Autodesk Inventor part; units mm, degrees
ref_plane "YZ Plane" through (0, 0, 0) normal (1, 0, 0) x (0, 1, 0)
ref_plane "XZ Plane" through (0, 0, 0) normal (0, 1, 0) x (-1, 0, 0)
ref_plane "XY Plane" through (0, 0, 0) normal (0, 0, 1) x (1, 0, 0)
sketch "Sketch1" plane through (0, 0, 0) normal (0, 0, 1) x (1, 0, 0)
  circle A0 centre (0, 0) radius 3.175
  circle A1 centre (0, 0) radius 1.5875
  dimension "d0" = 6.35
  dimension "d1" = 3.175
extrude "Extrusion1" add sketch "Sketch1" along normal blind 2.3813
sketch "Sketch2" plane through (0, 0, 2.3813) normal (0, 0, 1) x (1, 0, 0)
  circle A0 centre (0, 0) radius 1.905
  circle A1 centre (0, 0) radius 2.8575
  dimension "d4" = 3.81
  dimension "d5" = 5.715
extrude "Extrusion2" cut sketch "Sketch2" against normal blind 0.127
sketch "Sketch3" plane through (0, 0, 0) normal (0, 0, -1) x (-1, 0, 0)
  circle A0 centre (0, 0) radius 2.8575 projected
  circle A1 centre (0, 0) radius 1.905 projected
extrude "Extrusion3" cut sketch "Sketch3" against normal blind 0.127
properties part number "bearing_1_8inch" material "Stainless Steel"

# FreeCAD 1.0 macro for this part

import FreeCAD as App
import Part
import Sketcher
from FreeCAD import Vector
Q = App.Units.Quantity

doc = App.newDocument("Part")
params = doc.addObject("Spreadsheet::Sheet", "Params")
for row, (alias, value) in enumerate([
    ("sketch1_diameter", "0.25 in"),
    ("sketch1_diameter2", "0.125 in"),
    ("pad1_length", "0.093752 in"),
    ("sketch2_diameter", "0.15 in"),
    ("sketch2_diameter2", "0.225 in"),
    ("pocket1_length", "0.005 in"),
    ("sketch3_diameter", "0.15 in"),
    ("sketch3_diameter2", "0.225 in"),
    ("pocket2_length", "0.005 in"),
], start=1):
    params.set(f"A{row}", alias)
    params.set(f"B{row}", "=" + value)
    params.setAlias(f"B{row}", alias)

body = doc.addObject("PartDesign::Body", "Body")

# Sketch on XY plane
sketch1 = body.newObject("Sketcher::SketchObject", "Sketch")
sketch1.AttachmentSupport = (doc.getObject("XY_Plane"), [""])
sketch1.MapMode = "FlatFace"
sketch1.addGeometry([
    Part.Circle(Vector(0, 0, 0), Vector(0, 0, 1), 3.2),
    Part.Circle(Vector(0, 0, 0), Vector(0, 0, 1), 1.6),
], False)
sketch1.addConstraint([
    Sketcher.Constraint("Coincident", 0, 3, -1, 1),
    Sketcher.Constraint("Coincident", 1, 3, -1, 1),
    Sketcher.Constraint("Diameter", 0, Q("0.25 in")),
    Sketcher.Constraint("Diameter", 1, Q("0.125 in")),
])
sketch1.setExpression("Constraints[2]", "Params.sketch1_diameter")
sketch1.setExpression("Constraints[3]", "Params.sketch1_diameter2")
pad1 = body.newObject("PartDesign::Pad", "Pad")
pad1.Profile = sketch1
pad1.setExpression("Length", "Params.pad1_length")

# Sketch on XY plane
sketch2 = body.newObject("Sketcher::SketchObject", "Sketch001")
sketch2.AttachmentSupport = (doc.getObject("XY_Plane"), [""])
sketch2.MapMode = "FlatFace"
sketch2.AttachmentOffset = App.Placement(Vector(0, 0, 0.093752 * 25.4), App.Rotation())
sketch2.addGeometry([
    Part.Circle(Vector(0, 0, 0), Vector(0, 0, 1), 2.9),
    Part.Circle(Vector(0, 0, 0), Vector(0, 0, 1), 1.9),
], False)
sketch2.addConstraint([
    Sketcher.Constraint("Coincident", 0, 3, -1, 1),
    Sketcher.Constraint("Coincident", 1, 3, -1, 1),
    Sketcher.Constraint("Diameter", 1, Q("0.15 in")),
    Sketcher.Constraint("Diameter", 0, Q("0.225 in")),
])
sketch2.setExpression("Constraints[2]", "Params.sketch2_diameter")
sketch2.setExpression("Constraints[3]", "Params.sketch2_diameter2")
pocket1 = body.newObject("PartDesign::Pocket", "Pocket")
pocket1.Profile = sketch2
pocket1.setExpression("Length", "Params.pocket1_length")

# Sketch on XY plane
sketch3 = body.newObject("Sketcher::SketchObject", "Sketch002")
sketch3.AttachmentSupport = (doc.getObject("XY_Plane"), [""])
sketch3.MapMode = "FlatFace"
sketch3.addGeometry([
    Part.Circle(Vector(0, 0, 0), Vector(0, 0, 1), 2.9),
    Part.Circle(Vector(0, 0, 0), Vector(0, 0, 1), 1.9),
], False)
sketch3.addConstraint([
    Sketcher.Constraint("Coincident", 0, 3, -1, 1),
    Sketcher.Constraint("Coincident", 1, 3, -1, 1),
    Sketcher.Constraint("Diameter", 1, Q("0.15 in")),
    Sketcher.Constraint("Diameter", 0, Q("0.225 in")),
])
sketch3.setExpression("Constraints[2]", "Params.sketch3_diameter")
sketch3.setExpression("Constraints[3]", "Params.sketch3_diameter2")
pocket2 = body.newObject("PartDesign::Pocket", "Pocket001")
pocket2.Profile = sketch3
pocket2.setExpression("Length", "Params.pocket2_length")
pocket2.Reversed = True

doc.recompute()
